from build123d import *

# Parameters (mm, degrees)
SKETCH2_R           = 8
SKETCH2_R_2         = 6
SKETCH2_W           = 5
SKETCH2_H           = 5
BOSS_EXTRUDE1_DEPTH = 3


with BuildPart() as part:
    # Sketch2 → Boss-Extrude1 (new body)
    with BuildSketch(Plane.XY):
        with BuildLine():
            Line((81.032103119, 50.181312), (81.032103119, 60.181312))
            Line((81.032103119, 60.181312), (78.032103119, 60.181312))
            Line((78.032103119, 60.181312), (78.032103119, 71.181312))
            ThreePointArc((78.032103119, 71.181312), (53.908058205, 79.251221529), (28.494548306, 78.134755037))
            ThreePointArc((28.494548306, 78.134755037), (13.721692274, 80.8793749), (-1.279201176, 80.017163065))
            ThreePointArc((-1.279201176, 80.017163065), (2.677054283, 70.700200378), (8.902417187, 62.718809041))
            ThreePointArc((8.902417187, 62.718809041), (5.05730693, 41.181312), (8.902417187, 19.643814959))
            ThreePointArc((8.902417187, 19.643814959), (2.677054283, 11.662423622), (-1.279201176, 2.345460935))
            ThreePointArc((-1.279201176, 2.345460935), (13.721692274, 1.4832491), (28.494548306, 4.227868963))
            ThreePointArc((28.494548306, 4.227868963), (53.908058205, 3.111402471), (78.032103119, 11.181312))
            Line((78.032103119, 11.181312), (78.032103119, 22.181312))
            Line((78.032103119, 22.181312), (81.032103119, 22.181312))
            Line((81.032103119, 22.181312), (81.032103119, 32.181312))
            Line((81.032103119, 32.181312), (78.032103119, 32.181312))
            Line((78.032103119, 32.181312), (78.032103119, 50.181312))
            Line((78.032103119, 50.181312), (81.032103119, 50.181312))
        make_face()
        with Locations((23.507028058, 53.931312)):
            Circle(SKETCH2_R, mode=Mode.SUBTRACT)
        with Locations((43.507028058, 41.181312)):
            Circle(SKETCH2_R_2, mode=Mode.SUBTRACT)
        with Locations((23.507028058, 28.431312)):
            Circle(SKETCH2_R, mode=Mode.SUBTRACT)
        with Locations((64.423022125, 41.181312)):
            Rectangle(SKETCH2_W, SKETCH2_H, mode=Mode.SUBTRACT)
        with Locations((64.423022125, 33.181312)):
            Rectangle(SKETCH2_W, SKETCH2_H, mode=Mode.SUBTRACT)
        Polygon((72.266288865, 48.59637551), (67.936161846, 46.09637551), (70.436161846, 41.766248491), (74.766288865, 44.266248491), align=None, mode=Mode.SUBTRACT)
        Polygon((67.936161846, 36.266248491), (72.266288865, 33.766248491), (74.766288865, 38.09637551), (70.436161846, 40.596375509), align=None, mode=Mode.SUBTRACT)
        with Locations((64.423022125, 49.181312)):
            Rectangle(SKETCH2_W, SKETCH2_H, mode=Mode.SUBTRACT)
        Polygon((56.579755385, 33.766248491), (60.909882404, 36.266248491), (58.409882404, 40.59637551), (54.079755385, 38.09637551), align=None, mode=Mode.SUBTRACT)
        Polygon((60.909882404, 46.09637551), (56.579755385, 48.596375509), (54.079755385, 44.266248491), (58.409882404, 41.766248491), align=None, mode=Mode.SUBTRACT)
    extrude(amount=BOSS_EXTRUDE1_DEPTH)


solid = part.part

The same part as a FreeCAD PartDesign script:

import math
import FreeCAD as App
import Part
import Sketcher

V = App.Vector
Q = App.Units.Quantity

doc = App.newDocument("Part")
params = doc.addObject("Spreadsheet::Sheet", "Params")
for row, (alias, value) in enumerate([
    ("sketch1_diameter", "16 mm"),
    ("sketch1_diameter2", "12 mm"),
    ("sketch1_width", "3 mm"),
    ("sketch1_width2", "5 mm"),
    ("sketch1_height", "10 mm"),
    ("pad1_length", "3 mm"),
], start=1):
    params.set(f"A{row}", alias)
    params.set(f"B{row}", "=" + value)
    params.setAlias(f"B{row}", alias)

body = doc.addObject("PartDesign::Body", "Body")

# Sketch on XY plane
sketch1 = body.newObject("Sketcher::SketchObject", "Sketch")
sketch1.AttachmentSupport = (doc.getObject("XY_Plane"), [""])
sketch1.MapMode = "FlatFace"
sketch1.addGeometry([
    Part.LineSegment(V(81.032103, 50.181312, 0), V(81.032103, 60.181312, 0)),  # 0
    Part.LineSegment(V(81.032103, 60.181312, 0), V(78.032103, 60.181312, 0)),  # 1
    Part.LineSegment(V(78.032103, 60.181312, 0), V(78.032103, 71.181312, 0)),  # 2
    Part.ArcOfCircle(Part.Circle(V(44.211577, 10.171782, 0), V(0, 0, 1), 69.756654), math.radians(60.998282), math.radians(103.021241)),  # 3
    Part.ArcOfCircle(Part.Circle(V(9.779948, 18.533425, 0), V(0, 0, 1), 62.470432), math.radians(72.567901), math.radians(100.196821)),  # 4
    Part.ArcOfCircle(Part.Circle(V(36.212476, 90.438776, 0), V(0, 0, 1), 38.913184), math.radians(-164.465592), math.radians(-134.573223)),  # 5
    Part.ArcOfCircle(Part.Circle(V(67.29852, 41.181312, 0), V(0, 0, 1), 62.241213), math.radians(159.75515), math.radians(200.24485)),  # 6
    Part.ArcOfCircle(Part.Circle(V(36.212476, -8.076152, 0), V(0, 0, 1), 38.913184), math.radians(134.573223), math.radians(164.465592)),  # 7
    Part.ArcOfCircle(Part.Circle(V(9.779948, 63.829199, 0), V(0, 0, 1), 62.470432), math.radians(-100.196821), math.radians(-72.567901)),  # 8
    Part.ArcOfCircle(Part.Circle(V(44.211577, 72.190842, 0), V(0, 0, 1), 69.756654), math.radians(-103.021241), math.radians(-60.998282)),  # 9
    Part.LineSegment(V(78.032103, 11.181312, 0), V(78.032103, 22.181312, 0)),  # 10
    Part.LineSegment(V(78.032103, 22.181312, 0), V(81.032103, 22.181312, 0)),  # 11
    Part.LineSegment(V(81.032103, 22.181312, 0), V(81.032103, 32.181312, 0)),  # 12
    Part.LineSegment(V(81.032103, 32.181312, 0), V(78.032103, 32.181312, 0)),  # 13
    Part.LineSegment(V(78.032103, 32.181312, 0), V(78.032103, 50.181312, 0)),  # 14
    Part.LineSegment(V(78.032103, 50.181312, 0), V(81.032103, 50.181312, 0)),  # 15
    Part.Circle(V(23.507028, 28.431312, 0), V(0, 0, 1), 8),  # 16
    Part.LineSegment(V(60.909882, 36.266248, 0), V(56.579755, 33.766248, 0)),  # 17
    Part.LineSegment(V(56.579755, 33.766248, 0), V(54.079755, 38.096376, 0)),  # 18
    Part.LineSegment(V(54.079755, 38.096376, 0), V(58.409882, 40.596376, 0)),  # 19
    Part.LineSegment(V(58.409882, 40.596376, 0), V(60.909882, 36.266248, 0)),  # 20
    Part.LineSegment(V(66.923022, 30.681312, 0), V(61.923022, 30.681312, 0)),  # 21
    Part.LineSegment(V(61.923022, 30.681312, 0), V(61.923022, 35.681312, 0)),  # 22
    Part.LineSegment(V(61.923022, 35.681312, 0), V(66.923022, 35.681312, 0)),  # 23
    Part.LineSegment(V(66.923022, 35.681312, 0), V(66.923022, 30.681312, 0)),  # 24
    Part.LineSegment(V(72.266289, 33.766248, 0), V(67.936162, 36.266248, 0)),  # 25
    Part.LineSegment(V(67.936162, 36.266248, 0), V(70.436162, 40.596376, 0)),  # 26
    Part.LineSegment(V(70.436162, 40.596376, 0), V(74.766289, 38.096376, 0)),  # 27
    Part.LineSegment(V(74.766289, 38.096376, 0), V(72.266289, 33.766248, 0)),  # 28
    Part.Circle(V(43.507028, 41.181312, 0), V(0, 0, 1), 6),  # 29
    Part.Circle(V(23.507028, 53.931312, 0), V(0, 0, 1), 8),  # 30
    Part.LineSegment(V(56.579755, 48.596376, 0), V(60.909882, 46.096376, 0)),  # 31
    Part.LineSegment(V(60.909882, 46.096376, 0), V(58.409882, 41.766248, 0)),  # 32
    Part.LineSegment(V(58.409882, 41.766248, 0), V(54.079755, 44.266248, 0)),  # 33
    Part.LineSegment(V(54.079755, 44.266248, 0), V(56.579755, 48.596376, 0)),  # 34
    Part.LineSegment(V(66.923022, 38.681312, 0), V(61.923022, 38.681312, 0)),  # 35
    Part.LineSegment(V(61.923022, 38.681312, 0), V(61.923022, 43.681312, 0)),  # 36
    Part.LineSegment(V(61.923022, 43.681312, 0), V(66.923022, 43.681312, 0)),  # 37
    Part.LineSegment(V(66.923022, 43.681312, 0), V(66.923022, 38.681312, 0)),  # 38
    Part.LineSegment(V(67.936162, 46.096376, 0), V(72.266289, 48.596376, 0)),  # 39
    Part.LineSegment(V(72.266289, 48.596376, 0), V(74.766289, 44.266248, 0)),  # 40
    Part.LineSegment(V(74.766289, 44.266248, 0), V(70.436162, 41.766248, 0)),  # 41
    Part.LineSegment(V(70.436162, 41.766248, 0), V(67.936162, 46.096376, 0)),  # 42
    Part.LineSegment(V(66.923022, 46.681312, 0), V(61.923022, 46.681312, 0)),  # 43
    Part.LineSegment(V(61.923022, 46.681312, 0), V(61.923022, 51.681312, 0)),  # 44
    Part.LineSegment(V(61.923022, 51.681312, 0), V(66.923022, 51.681312, 0)),  # 45
    Part.LineSegment(V(66.923022, 51.681312, 0), V(66.923022, 46.681312, 0)),  # 46
], False)
sketch1.addConstraint([
    Sketcher.Constraint("Coincident", 0, 2, 1, 1),
    Sketcher.Constraint("Coincident", 1, 2, 2, 1),
    Sketcher.Constraint("Coincident", 2, 2, 3, 1),
    Sketcher.Constraint("Coincident", 3, 2, 4, 1),
    Sketcher.Constraint("Coincident", 4, 2, 5, 1),
    Sketcher.Constraint("Coincident", 5, 2, 6, 1),
    Sketcher.Constraint("Coincident", 6, 2, 7, 1),
    Sketcher.Constraint("Coincident", 7, 2, 8, 1),
    Sketcher.Constraint("Coincident", 8, 2, 9, 1),
    Sketcher.Constraint("Coincident", 9, 2, 10, 1),
    Sketcher.Constraint("Coincident", 10, 2, 11, 1),
    Sketcher.Constraint("Coincident", 11, 2, 12, 1),
    Sketcher.Constraint("Coincident", 12, 2, 13, 1),
    Sketcher.Constraint("Coincident", 13, 2, 14, 1),
    Sketcher.Constraint("Coincident", 14, 2, 15, 1),
    Sketcher.Constraint("Coincident", 15, 2, 0, 1),
    Sketcher.Constraint("Coincident", 17, 2, 18, 1),
    Sketcher.Constraint("Coincident", 18, 2, 19, 1),
    Sketcher.Constraint("Coincident", 19, 2, 20, 1),
    Sketcher.Constraint("Coincident", 20, 2, 17, 1),
    Sketcher.Constraint("Coincident", 21, 2, 22, 1),
    Sketcher.Constraint("Coincident", 22, 2, 23, 1),
    Sketcher.Constraint("Coincident", 23, 2, 24, 1),
    Sketcher.Constraint("Coincident", 24, 2, 21, 1),
    Sketcher.Constraint("Coincident", 25, 2, 26, 1),
    Sketcher.Constraint("Coincident", 26, 2, 27, 1),
    Sketcher.Constraint("Coincident", 27, 2, 28, 1),
    Sketcher.Constraint("Coincident", 28, 2, 25, 1),
    Sketcher.Constraint("Coincident", 31, 2, 32, 1),
    Sketcher.Constraint("Coincident", 32, 2, 33, 1),
    Sketcher.Constraint("Coincident", 33, 2, 34, 1),
    Sketcher.Constraint("Coincident", 34, 2, 31, 1),
    Sketcher.Constraint("Coincident", 35, 2, 36, 1),
    Sketcher.Constraint("Coincident", 36, 2, 37, 1),
    Sketcher.Constraint("Coincident", 37, 2, 38, 1),
    Sketcher.Constraint("Coincident", 38, 2, 35, 1),
    Sketcher.Constraint("Coincident", 39, 2, 40, 1),
    Sketcher.Constraint("Coincident", 40, 2, 41, 1),
    Sketcher.Constraint("Coincident", 41, 2, 42, 1),
    Sketcher.Constraint("Coincident", 42, 2, 39, 1),
    Sketcher.Constraint("Coincident", 43, 2, 44, 1),
    Sketcher.Constraint("Coincident", 44, 2, 45, 1),
    Sketcher.Constraint("Coincident", 45, 2, 46, 1),
    Sketcher.Constraint("Coincident", 46, 2, 43, 1),
    Sketcher.Constraint("Vertical", 0),
    Sketcher.Constraint("Horizontal", 1),
    Sketcher.Constraint("Vertical", 2),
    Sketcher.Constraint("Vertical", 10),
    Sketcher.Constraint("Horizontal", 11),
    Sketcher.Constraint("Vertical", 12),
    Sketcher.Constraint("Horizontal", 13),
    Sketcher.Constraint("Vertical", 14),
    Sketcher.Constraint("Horizontal", 15),
    Sketcher.Constraint("Horizontal", 21),
    Sketcher.Constraint("Vertical", 22),
    Sketcher.Constraint("Horizontal", 23),
    Sketcher.Constraint("Vertical", 24),
    Sketcher.Constraint("Horizontal", 35),
    Sketcher.Constraint("Vertical", 36),
    Sketcher.Constraint("Horizontal", 37),
    Sketcher.Constraint("Vertical", 38),
    Sketcher.Constraint("Horizontal", 43),
    Sketcher.Constraint("Vertical", 44),
    Sketcher.Constraint("Horizontal", 45),
    Sketcher.Constraint("Vertical", 46),
    Sketcher.Constraint("Equal", 5, 7),
    Sketcher.Constraint("Equal", 4, 8),
    Sketcher.Constraint("Equal", 3, 9),
    Sketcher.Constraint("Equal", 16, 30),
    Sketcher.Constraint("Perpendicular", 17, 18),
    Sketcher.Constraint("Perpendicular", 18, 19),
    Sketcher.Constraint("Perpendicular", 19, 20),
    Sketcher.Constraint("Perpendicular", 25, 26),
    Sketcher.Constraint("Perpendicular", 26, 27),
    Sketcher.Constraint("Perpendicular", 27, 28),
    Sketcher.Constraint("Perpendicular", 28, 31),
    Sketcher.Constraint("Perpendicular", 31, 32),
    Sketcher.Constraint("Perpendicular", 32, 33),
    Sketcher.Constraint("Perpendicular", 33, 34),
    Sketcher.Constraint("Perpendicular", 20, 39),
    Sketcher.Constraint("Perpendicular", 39, 40),
    Sketcher.Constraint("Perpendicular", 40, 41),
    Sketcher.Constraint("Perpendicular", 41, 42),
    Sketcher.Constraint("Horizontal", 6, 3, 29, 3),
    Sketcher.Constraint("Horizontal", 20, 2, 25, 2),
    Sketcher.Constraint("Horizontal", 19, 2, 26, 2),
    Sketcher.Constraint("Horizontal", 18, 2, 27, 2),
    Sketcher.Constraint("Horizontal", 34, 2, 39, 2),
    Sketcher.Constraint("Horizontal", 33, 2, 40, 2),
    Sketcher.Constraint("Horizontal", 32, 2, 41, 2),
    Sketcher.Constraint("Vertical", 5, 3, 7, 3),
    Sketcher.Constraint("Vertical", 4, 3, 8, 3),
    Sketcher.Constraint("Vertical", 3, 3, 9, 3),
    Sketcher.Constraint("Vertical", 16, 3, 30, 3),
    Sketcher.Constraint("Vertical", 5, 2, 6, 2),
    Sketcher.Constraint("Vertical", 4, 2, 7, 2),
    Sketcher.Constraint("Vertical", 3, 2, 8, 2),
    Sketcher.Constraint("Vertical", 2, 2, 9, 2),
    Sketcher.Constraint("Vertical", 0, 2, 11, 2),
    Sketcher.Constraint("Vertical", 10, 2, 13, 2),
    Sketcher.Constraint("Vertical", 20, 2, 31, 2),
    Sketcher.Constraint("Vertical", 19, 2, 32, 2),
    Sketcher.Constraint("Vertical", 18, 2, 33, 2),
    Sketcher.Constraint("Vertical", 22, 2, 35, 2),
    Sketcher.Constraint("Vertical", 24, 2, 37, 2),
    Sketcher.Constraint("Vertical", 28, 2, 39, 2),
    Sketcher.Constraint("Vertical", 27, 2, 40, 2),
    Sketcher.Constraint("Vertical", 36, 2, 43, 2),
    Sketcher.Constraint("Vertical", 38, 2, 45, 2),
    Sketcher.Constraint("Equal", 2, 10),
    Sketcher.Constraint("Equal", 0, 12),
    Sketcher.Constraint("Equal", 45, 22),
    Sketcher.Constraint("Equal", 24, 36),
    Sketcher.Constraint("Equal", 38, 44),
    Sketcher.Constraint("Equal", 17, 18),
    Sketcher.Constraint("Diameter", 16, 16.0),
    Sketcher.Constraint("Diameter", 29, 12.0),
    Sketcher.Constraint("DistanceX", 1, 2, 1, 1, 3.0),
    Sketcher.Constraint("DistanceX", 21, 2, 21, 1, 5.0),
    Sketcher.Constraint("DistanceY", 0, 1, 0, 2, 10.0),
    Sketcher.Constraint("DistanceY", 2, 1, 2, 2, 11.0),
    Sketcher.Constraint("DistanceY", 14, 1, 14, 2, 18.0),
    Sketcher.Constraint("Angle", 17, Q("-150 deg")),
    Sketcher.Constraint("Distance", 17, 5.0),
    Sketcher.Constraint("DistanceX", 16, 3, 29, 3, 20.0),
    Sketcher.Constraint("DistanceY", 18, 2, 31, 2, 8.0),
    Sketcher.Constraint("DistanceY", 22, 2, 35, 2, 3.0),
    Sketcher.Constraint("DistanceY", 36, 2, 43, 2, 3.0),
    Sketcher.Constraint("DistanceY", 16, 3, 30, 3, 25.5),
    Sketcher.Constraint("DistanceY", 21, 2, 6, 3, 10.5),
    Sketcher.Constraint("Radius", 4, 62.470432),
    Sketcher.Constraint("DistanceY", 16, 3, 6, 3, 12.75),
    Sketcher.Constraint("Radius", 3, 69.756654),
    Sketcher.Constraint("Radius", 5, 38.913184),
    Sketcher.Constraint("Radius", 6, 62.241213),
    Sketcher.Constraint("DistanceY", -1, 1, 8, 3, 63.829199),
    Sketcher.Constraint("DistanceX", 4, 2, -1, 1, 1.279201),
    Sketcher.Constraint("DistanceX", 5, 3, 3, 3, 7.999101),
    Sketcher.Constraint("DistanceX", 8, 3, 3, 2, 18.714601),
    Sketcher.Constraint("DistanceY", -1, 1, 3, 3, 10.171782),
    Sketcher.Constraint("DistanceX", -1, 1, 6, 3, 67.29852),
    Sketcher.Constraint("DistanceY", -1, 1, 6, 3, 41.181312),
    Sketcher.Constraint("DistanceY", 7, 3, -1, 1, 8.076152),
    Sketcher.Constraint("DistanceX", -1, 1, 16, 3, 23.507028),
    Sketcher.Constraint("DistanceY", -1, 1, 17, 2, 33.766248),
    Sketcher.Constraint("DistanceX", -1, 1, 25, 2, 67.936162),
    Sketcher.Constraint("DistanceX", 19, 2, 13, 2, 19.622221),
    Sketcher.Constraint("DistanceX", 20, 2, 21, 2, 1.01314),
])
sketch1.setExpression("Constraints[115]", "Params.sketch1_diameter")
sketch1.setExpression("Constraints[116]", "Params.sketch1_diameter2")
sketch1.setExpression("Constraints[117]", "Params.sketch1_width")
sketch1.setExpression("Constraints[118]", "Params.sketch1_width2")
sketch1.setExpression("Constraints[119]", "Params.sketch1_height")
pad1 = body.newObject("PartDesign::Pad", "Pad")
pad1.Profile = sketch1
pad1.setExpression("Length", "Params.pad1_length")

doc.recompute()
